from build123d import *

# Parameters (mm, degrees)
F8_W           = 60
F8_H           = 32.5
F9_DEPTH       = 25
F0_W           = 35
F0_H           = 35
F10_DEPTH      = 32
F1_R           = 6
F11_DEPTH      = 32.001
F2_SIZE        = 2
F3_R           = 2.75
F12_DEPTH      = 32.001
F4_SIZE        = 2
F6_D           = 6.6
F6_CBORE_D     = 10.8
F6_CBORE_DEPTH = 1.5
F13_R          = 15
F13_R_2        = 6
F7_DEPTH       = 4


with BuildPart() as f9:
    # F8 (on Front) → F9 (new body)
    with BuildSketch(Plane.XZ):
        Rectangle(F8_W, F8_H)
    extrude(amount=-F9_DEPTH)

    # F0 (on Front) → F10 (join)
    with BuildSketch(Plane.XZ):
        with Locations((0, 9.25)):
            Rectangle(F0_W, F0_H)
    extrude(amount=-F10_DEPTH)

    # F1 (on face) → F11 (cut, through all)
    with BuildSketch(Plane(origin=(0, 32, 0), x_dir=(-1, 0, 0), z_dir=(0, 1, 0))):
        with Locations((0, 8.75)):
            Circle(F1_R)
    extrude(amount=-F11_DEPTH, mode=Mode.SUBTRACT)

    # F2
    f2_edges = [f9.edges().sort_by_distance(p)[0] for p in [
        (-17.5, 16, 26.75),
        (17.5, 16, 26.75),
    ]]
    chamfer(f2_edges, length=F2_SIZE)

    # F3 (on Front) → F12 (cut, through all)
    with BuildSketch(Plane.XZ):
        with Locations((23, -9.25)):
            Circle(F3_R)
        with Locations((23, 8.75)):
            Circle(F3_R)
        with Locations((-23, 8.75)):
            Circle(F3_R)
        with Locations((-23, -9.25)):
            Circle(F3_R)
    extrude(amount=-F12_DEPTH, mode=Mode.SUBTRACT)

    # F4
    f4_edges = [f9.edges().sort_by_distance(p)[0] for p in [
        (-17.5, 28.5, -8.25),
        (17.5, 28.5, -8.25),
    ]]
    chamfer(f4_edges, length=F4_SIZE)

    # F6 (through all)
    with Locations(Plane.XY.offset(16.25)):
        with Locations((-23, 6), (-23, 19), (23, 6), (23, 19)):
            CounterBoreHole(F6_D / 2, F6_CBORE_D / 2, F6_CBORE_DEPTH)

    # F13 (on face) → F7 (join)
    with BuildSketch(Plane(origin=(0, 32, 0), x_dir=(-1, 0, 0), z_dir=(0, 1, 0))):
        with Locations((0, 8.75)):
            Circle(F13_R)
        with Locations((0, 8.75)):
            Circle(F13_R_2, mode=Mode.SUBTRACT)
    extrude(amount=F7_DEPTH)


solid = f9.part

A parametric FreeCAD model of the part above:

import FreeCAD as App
import Part
import Sketcher

V = App.Vector


def edges_at(feature, points):
    """Names of the edges that pass closest to the given points."""
    edges = feature.Shape.Edges
    near = lambda p: min(range(len(edges)), key=lambda i: edges[i].distToShape(Part.Vertex(*p))[0])
    return sorted({f"Edge{near(p) + 1}" for p in points})

doc = App.newDocument("Part")
body = doc.addObject("PartDesign::Body", "Body")

# Sketch on XZ plane
sketch1 = body.newObject("Sketcher::SketchObject", "Sketch")
sketch1.AttachmentSupport = (doc.getObject("XZ_Plane"), [""])
sketch1.MapMode = "FlatFace"
sketch1.addGeometry(Part.LineSegment(V(-30, 16, 0), V(-30, -16, 0)), False)
sketch1.addGeometry(Part.LineSegment(V(-30, -16, 0), V(30, -16, 0)), False)
sketch1.addGeometry(Part.LineSegment(V(30, -16, 0), V(30, 16, 0)), False)
sketch1.addGeometry(Part.LineSegment(V(30, 16, 0), V(-30, 16, 0)), False)
sketch1.addConstraint(Sketcher.Constraint("Coincident", 0, 2, 1, 1))
sketch1.addConstraint(Sketcher.Constraint("Coincident", 1, 2, 2, 1))
sketch1.addConstraint(Sketcher.Constraint("Coincident", 2, 2, 3, 1))
sketch1.addConstraint(Sketcher.Constraint("Coincident", 3, 2, 0, 1))
sketch1.addConstraint(Sketcher.Constraint("Vertical", 0))
sketch1.addConstraint(Sketcher.Constraint("Horizontal", 1))
sketch1.addConstraint(Sketcher.Constraint("Vertical", 2))
sketch1.addConstraint(Sketcher.Constraint("Horizontal", 3))
sketch1.addConstraint(Sketcher.Constraint("Symmetric", 0, 2, 2, 2, -1, 1))
sketch1.addConstraint(Sketcher.Constraint("DistanceX", 1, 1, 1, 2, 60.0))
sketch1.addConstraint(Sketcher.Constraint("DistanceY", 0, 2, 0, 1, 32.5))
pad1 = body.newObject("PartDesign::Pad", "Pad")
pad1.Profile = sketch1
pad1.Length = 25
pad1.Reversed = True

# Sketch on XZ plane
sketch2 = body.newObject("Sketcher::SketchObject", "Sketch001")
sketch2.AttachmentSupport = (doc.getObject("XZ_Plane"), [""])
sketch2.MapMode = "FlatFace"
sketch2.addGeometry(Part.LineSegment(V(-18, 27, 0), V(-18, -8, 0)), False)
sketch2.addGeometry(Part.LineSegment(V(-18, -8, 0), V(18, -8, 0)), False)
sketch2.addGeometry(Part.LineSegment(V(18, -8, 0), V(18, 27, 0)), False)
sketch2.addGeometry(Part.LineSegment(V(18, 27, 0), V(-18, 27, 0)), False)
sketch2.addConstraint(Sketcher.Constraint("Coincident", 0, 2, 1, 1))
sketch2.addConstraint(Sketcher.Constraint("Coincident", 1, 2, 2, 1))
sketch2.addConstraint(Sketcher.Constraint("Coincident", 2, 2, 3, 1))
sketch2.addConstraint(Sketcher.Constraint("Coincident", 3, 2, 0, 1))
sketch2.addConstraint(Sketcher.Constraint("Vertical", 0))
sketch2.addConstraint(Sketcher.Constraint("Horizontal", 1))
sketch2.addConstraint(Sketcher.Constraint("Vertical", 2))
sketch2.addConstraint(Sketcher.Constraint("Horizontal", 3))
sketch2.addConstraint(Sketcher.Constraint("Equal", 3, 0))
sketch2.addConstraint(Sketcher.Constraint("DistanceX", 1, 1, 1, 2, 35.0))
sketch2.addConstraint(Sketcher.Constraint("DistanceX", 0, 2, -1, 1, 17.5))
sketch2.addConstraint(Sketcher.Constraint("DistanceY", 0, 2, -1, 1, 8.25))
pad2 = body.newObject("PartDesign::Pad", "Pad001")
pad2.Profile = sketch2
pad2.Length = 32
pad2.Reversed = True

# Sketch on XZ plane
sketch3 = body.newObject("Sketcher::SketchObject", "Sketch002")
sketch3.AttachmentSupport = (doc.getObject("XZ_Plane"), [""])
sketch3.MapMode = "FlatFace"
sketch3.AttachmentOffset = App.Placement(V(0, 0, -32), App.Rotation())
sketch3.addGeometry(Part.Circle(V(0, 9, 0), V(0, 0, 1), 6), False)
sketch3.addConstraint(Sketcher.Constraint("PointOnObject", 0, 3, -2))
sketch3.addConstraint(Sketcher.Constraint("Diameter", 0, 12.0))
sketch3.addConstraint(Sketcher.Constraint("DistanceY", -1, 1, 0, 3, 8.75))
pocket1 = body.newObject("PartDesign::Pocket", "Pocket")
pocket1.Profile = sketch3
pocket1.Type = "ThroughAll"
pocket1.Reversed = True
doc.recompute()

chamfer = body.newObject("PartDesign::Chamfer", "Chamfer")
chamfer.Base = (pocket1, edges_at(pocket1, [(-17.5, 16, 26.75), (17.5, 16, 26.75)]))
chamfer.Size = 2

# Sketch on XZ plane
sketch4 = body.newObject("Sketcher::SketchObject", "Sketch003")
sketch4.AttachmentSupport = (doc.getObject("XZ_Plane"), [""])
sketch4.MapMode = "FlatFace"
sketch4.addGeometry(Part.Circle(V(23, -9.2, 0), V(0, 0, 1), 2.8), False)
sketch4.addGeometry(Part.Circle(V(23, 8.8, 0), V(0, 0, 1), 2.8), False)
sketch4.addGeometry(Part.Circle(V(-23, 8.8, 0), V(0, 0, 1), 2.8), False)
sketch4.addGeometry(Part.Circle(V(-23, -9.2, 0), V(0, 0, 1), 2.8), False)
sketch4.addConstraint(Sketcher.Constraint("Equal", 0, 1))
sketch4.addConstraint(Sketcher.Constraint("Equal", 1, 2))
sketch4.addConstraint(Sketcher.Constraint("Equal", 2, 3))
sketch4.addConstraint(Sketcher.Constraint("Symmetric", 1, 3, 2, 3, -2))
sketch4.addConstraint(Sketcher.Constraint("Symmetric", 0, 3, 3, 3, -2))
sketch4.addConstraint(Sketcher.Constraint("Vertical", 0, 3, 1, 3))
sketch4.addConstraint(Sketcher.Constraint("Diameter", 0, 5.5))
sketch4.addConstraint(Sketcher.Constraint("DistanceX", -1, 1, 0, 3, 23.0))
sketch4.addConstraint(Sketcher.Constraint("DistanceY", 0, 3, 1, 3, 18.0))
sketch4.addConstraint(Sketcher.Constraint("DistanceY", 0, 3, -1, 1, 9.25))
pocket2 = body.newObject("PartDesign::Pocket", "Pocket001")
pocket2.Profile = sketch4
pocket2.Type = "ThroughAll"
doc.recompute()

chamfer2 = body.newObject("PartDesign::Chamfer", "Chamfer001")
chamfer2.Base = (pocket2, edges_at(pocket2, [(-17.5, 28.5, -8.25), (17.5, 28.5, -8.25)]))
chamfer2.Size = 2

# Sketch on XY plane
sketch5 = body.newObject("Sketcher::SketchObject", "Sketch004")
sketch5.AttachmentSupport = (doc.getObject("XY_Plane"), [""])
sketch5.MapMode = "FlatFace"
sketch5.AttachmentOffset = App.Placement(V(0, 0, 16.25), App.Rotation())
sketch5.addGeometry(Part.Circle(V(-23, 6, 0), V(0, 0, 1), 3.3), False)
sketch5.addGeometry(Part.Circle(V(-23, 19, 0), V(0, 0, 1), 3.3), False)
sketch5.addGeometry(Part.Circle(V(23, 6, 0), V(0, 0, 1), 3.3), False)
sketch5.addGeometry(Part.Circle(V(23, 19, 0), V(0, 0, 1), 3.3), False)
sketch5.addConstraint(Sketcher.Constraint("Equal", 0, 1))
sketch5.addConstraint(Sketcher.Constraint("Equal", 1, 2))
sketch5.addConstraint(Sketcher.Constraint("Equal", 2, 3))
sketch5.addConstraint(Sketcher.Constraint("Symmetric", 0, 3, 2, 3, -2))
sketch5.addConstraint(Sketcher.Constraint("Symmetric", 1, 3, 3, 3, -2))
sketch5.addConstraint(Sketcher.Constraint("Vertical", 0, 3, 1, 3))
sketch5.addConstraint(Sketcher.Constraint("Diameter", 0, 6.6))
sketch5.addConstraint(Sketcher.Constraint("DistanceX", 0, 3, -1, 1, 23.0))
sketch5.addConstraint(Sketcher.Constraint("DistanceY", -1, 1, 0, 3, 6.0))
sketch5.addConstraint(Sketcher.Constraint("DistanceY", -1, 1, 1, 3, 19.0))
doc.recompute()
hole = body.newObject("PartDesign::Hole", "Hole")
hole.Profile = sketch5
hole.ThreadType = "None"
hole.Diameter = 6.6
hole.DepthType = "ThroughAll"
hole.HoleCutType = "Counterbore"
hole.HoleCutDiameter = 10.8
hole.HoleCutDepth = 1.5

# Sketch on XZ plane
sketch6 = body.newObject("Sketcher::SketchObject", "Sketch005")
sketch6.AttachmentSupport = (doc.getObject("XZ_Plane"), [""])
sketch6.MapMode = "FlatFace"
sketch6.AttachmentOffset = App.Placement(V(0, 0, -32), App.Rotation())
sketch6.addGeometry(Part.Circle(V(0, 9, 0), V(0, 0, 1), 15), False)
sketch6.addGeometry(Part.Circle(V(0, 9, 0), V(0, 0, 1), 6), False)
sketch6.addConstraint(Sketcher.Constraint("Coincident", 1, 3, 0, 3))
sketch6.addConstraint(Sketcher.Constraint("PointOnObject", 0, 3, -2))
sketch6.addConstraint(Sketcher.Constraint("Diameter", 0, 30.0))
sketch6.addConstraint(Sketcher.Constraint("Diameter", 1, 12.0))
sketch6.addConstraint(Sketcher.Constraint("DistanceY", -1, 1, 0, 3, 8.75))
pad3 = body.newObject("PartDesign::Pad", "Pad002")
pad3.Profile = sketch6
pad3.Length = 4
pad3.Reversed = True

doc.recompute()
